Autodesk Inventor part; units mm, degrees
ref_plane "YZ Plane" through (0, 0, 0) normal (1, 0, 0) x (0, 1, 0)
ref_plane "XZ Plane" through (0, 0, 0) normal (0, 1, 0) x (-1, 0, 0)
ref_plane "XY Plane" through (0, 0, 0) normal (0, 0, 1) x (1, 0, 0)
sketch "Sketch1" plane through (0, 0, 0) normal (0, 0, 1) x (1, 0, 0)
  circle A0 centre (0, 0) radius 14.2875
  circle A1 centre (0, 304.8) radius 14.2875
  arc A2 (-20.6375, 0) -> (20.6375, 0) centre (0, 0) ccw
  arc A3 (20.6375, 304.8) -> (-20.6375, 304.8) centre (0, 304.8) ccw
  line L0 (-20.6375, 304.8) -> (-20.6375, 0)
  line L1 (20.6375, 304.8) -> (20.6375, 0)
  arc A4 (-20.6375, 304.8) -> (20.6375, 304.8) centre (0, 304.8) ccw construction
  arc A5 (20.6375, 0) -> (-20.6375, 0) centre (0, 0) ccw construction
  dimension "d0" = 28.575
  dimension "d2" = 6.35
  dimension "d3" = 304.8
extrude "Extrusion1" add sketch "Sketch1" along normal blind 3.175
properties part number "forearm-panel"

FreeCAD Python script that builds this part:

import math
import FreeCAD as App
import Part
import Sketcher
from FreeCAD import Vector
Q = App.Units.Quantity

doc = App.newDocument("Part")
body = doc.addObject("PartDesign::Body", "Body")

# Sketch on XY plane
sketch1 = body.newObject("Sketcher::SketchObject", "Sketch")
sketch1.AttachmentSupport = (doc.getObject("XY_Plane"), [""])
sketch1.MapMode = "FlatFace"
sketch1.addGeometry(Part.LineSegment(Vector(-21, 305, 0), Vector(-21, 0, 0)), False)
sketch1.addGeometry(Part.ArcOfCircle(Part.Circle(Vector(0, 0, 0), Vector(0, 0, 1), 21), math.radians(180), math.radians(360)), False)
sketch1.addGeometry(Part.LineSegment(Vector(21, 0, 0), Vector(21, 305, 0)), False)
sketch1.addGeometry(Part.ArcOfCircle(Part.Circle(Vector(0, 305, 0), Vector(0, 0, 1), 21), math.radians(0), math.radians(180)), False)
sketch1.addGeometry(Part.Circle(Vector(0, 0, 0), Vector(0, 0, 1), 14), False)
sketch1.addGeometry(Part.Circle(Vector(0, 305, 0), Vector(0, 0, 1), 14), False)
sketch1.addConstraint(Sketcher.Constraint("Tangent", 0, 2, 1, 1))
sketch1.addConstraint(Sketcher.Constraint("Tangent", 1, 2, 2, 1))
sketch1.addConstraint(Sketcher.Constraint("Tangent", 2, 2, 3, 1))
sketch1.addConstraint(Sketcher.Constraint("Tangent", 3, 2, 0, 1))
sketch1.addConstraint(Sketcher.Constraint("Vertical", 0))
sketch1.addConstraint(Sketcher.Constraint("Vertical", 2))
sketch1.addConstraint(Sketcher.Constraint("Coincident", 1, 3, -1, 1))
sketch1.addConstraint(Sketcher.Constraint("Coincident", 4, 3, -1, 1))
sketch1.addConstraint(Sketcher.Constraint("Coincident", 5, 3, 3, 3))
sketch1.addConstraint(Sketcher.Constraint("Equal", 4, 5))
sketch1.addConstraint(Sketcher.Constraint("DistanceY", 0, 2, 0, 1, Q("12 in")))
sketch1.addConstraint(Sketcher.Constraint("Diameter", 4, Q("1.125 in")))
sketch1.addConstraint(Sketcher.Constraint("Radius", 1, Q("0.8125 in")))
pad1 = body.newObject("PartDesign::Pad", "Pad")
pad1.Profile = sketch1
pad1.Length = Q("0.125 in")

doc.recompute()
